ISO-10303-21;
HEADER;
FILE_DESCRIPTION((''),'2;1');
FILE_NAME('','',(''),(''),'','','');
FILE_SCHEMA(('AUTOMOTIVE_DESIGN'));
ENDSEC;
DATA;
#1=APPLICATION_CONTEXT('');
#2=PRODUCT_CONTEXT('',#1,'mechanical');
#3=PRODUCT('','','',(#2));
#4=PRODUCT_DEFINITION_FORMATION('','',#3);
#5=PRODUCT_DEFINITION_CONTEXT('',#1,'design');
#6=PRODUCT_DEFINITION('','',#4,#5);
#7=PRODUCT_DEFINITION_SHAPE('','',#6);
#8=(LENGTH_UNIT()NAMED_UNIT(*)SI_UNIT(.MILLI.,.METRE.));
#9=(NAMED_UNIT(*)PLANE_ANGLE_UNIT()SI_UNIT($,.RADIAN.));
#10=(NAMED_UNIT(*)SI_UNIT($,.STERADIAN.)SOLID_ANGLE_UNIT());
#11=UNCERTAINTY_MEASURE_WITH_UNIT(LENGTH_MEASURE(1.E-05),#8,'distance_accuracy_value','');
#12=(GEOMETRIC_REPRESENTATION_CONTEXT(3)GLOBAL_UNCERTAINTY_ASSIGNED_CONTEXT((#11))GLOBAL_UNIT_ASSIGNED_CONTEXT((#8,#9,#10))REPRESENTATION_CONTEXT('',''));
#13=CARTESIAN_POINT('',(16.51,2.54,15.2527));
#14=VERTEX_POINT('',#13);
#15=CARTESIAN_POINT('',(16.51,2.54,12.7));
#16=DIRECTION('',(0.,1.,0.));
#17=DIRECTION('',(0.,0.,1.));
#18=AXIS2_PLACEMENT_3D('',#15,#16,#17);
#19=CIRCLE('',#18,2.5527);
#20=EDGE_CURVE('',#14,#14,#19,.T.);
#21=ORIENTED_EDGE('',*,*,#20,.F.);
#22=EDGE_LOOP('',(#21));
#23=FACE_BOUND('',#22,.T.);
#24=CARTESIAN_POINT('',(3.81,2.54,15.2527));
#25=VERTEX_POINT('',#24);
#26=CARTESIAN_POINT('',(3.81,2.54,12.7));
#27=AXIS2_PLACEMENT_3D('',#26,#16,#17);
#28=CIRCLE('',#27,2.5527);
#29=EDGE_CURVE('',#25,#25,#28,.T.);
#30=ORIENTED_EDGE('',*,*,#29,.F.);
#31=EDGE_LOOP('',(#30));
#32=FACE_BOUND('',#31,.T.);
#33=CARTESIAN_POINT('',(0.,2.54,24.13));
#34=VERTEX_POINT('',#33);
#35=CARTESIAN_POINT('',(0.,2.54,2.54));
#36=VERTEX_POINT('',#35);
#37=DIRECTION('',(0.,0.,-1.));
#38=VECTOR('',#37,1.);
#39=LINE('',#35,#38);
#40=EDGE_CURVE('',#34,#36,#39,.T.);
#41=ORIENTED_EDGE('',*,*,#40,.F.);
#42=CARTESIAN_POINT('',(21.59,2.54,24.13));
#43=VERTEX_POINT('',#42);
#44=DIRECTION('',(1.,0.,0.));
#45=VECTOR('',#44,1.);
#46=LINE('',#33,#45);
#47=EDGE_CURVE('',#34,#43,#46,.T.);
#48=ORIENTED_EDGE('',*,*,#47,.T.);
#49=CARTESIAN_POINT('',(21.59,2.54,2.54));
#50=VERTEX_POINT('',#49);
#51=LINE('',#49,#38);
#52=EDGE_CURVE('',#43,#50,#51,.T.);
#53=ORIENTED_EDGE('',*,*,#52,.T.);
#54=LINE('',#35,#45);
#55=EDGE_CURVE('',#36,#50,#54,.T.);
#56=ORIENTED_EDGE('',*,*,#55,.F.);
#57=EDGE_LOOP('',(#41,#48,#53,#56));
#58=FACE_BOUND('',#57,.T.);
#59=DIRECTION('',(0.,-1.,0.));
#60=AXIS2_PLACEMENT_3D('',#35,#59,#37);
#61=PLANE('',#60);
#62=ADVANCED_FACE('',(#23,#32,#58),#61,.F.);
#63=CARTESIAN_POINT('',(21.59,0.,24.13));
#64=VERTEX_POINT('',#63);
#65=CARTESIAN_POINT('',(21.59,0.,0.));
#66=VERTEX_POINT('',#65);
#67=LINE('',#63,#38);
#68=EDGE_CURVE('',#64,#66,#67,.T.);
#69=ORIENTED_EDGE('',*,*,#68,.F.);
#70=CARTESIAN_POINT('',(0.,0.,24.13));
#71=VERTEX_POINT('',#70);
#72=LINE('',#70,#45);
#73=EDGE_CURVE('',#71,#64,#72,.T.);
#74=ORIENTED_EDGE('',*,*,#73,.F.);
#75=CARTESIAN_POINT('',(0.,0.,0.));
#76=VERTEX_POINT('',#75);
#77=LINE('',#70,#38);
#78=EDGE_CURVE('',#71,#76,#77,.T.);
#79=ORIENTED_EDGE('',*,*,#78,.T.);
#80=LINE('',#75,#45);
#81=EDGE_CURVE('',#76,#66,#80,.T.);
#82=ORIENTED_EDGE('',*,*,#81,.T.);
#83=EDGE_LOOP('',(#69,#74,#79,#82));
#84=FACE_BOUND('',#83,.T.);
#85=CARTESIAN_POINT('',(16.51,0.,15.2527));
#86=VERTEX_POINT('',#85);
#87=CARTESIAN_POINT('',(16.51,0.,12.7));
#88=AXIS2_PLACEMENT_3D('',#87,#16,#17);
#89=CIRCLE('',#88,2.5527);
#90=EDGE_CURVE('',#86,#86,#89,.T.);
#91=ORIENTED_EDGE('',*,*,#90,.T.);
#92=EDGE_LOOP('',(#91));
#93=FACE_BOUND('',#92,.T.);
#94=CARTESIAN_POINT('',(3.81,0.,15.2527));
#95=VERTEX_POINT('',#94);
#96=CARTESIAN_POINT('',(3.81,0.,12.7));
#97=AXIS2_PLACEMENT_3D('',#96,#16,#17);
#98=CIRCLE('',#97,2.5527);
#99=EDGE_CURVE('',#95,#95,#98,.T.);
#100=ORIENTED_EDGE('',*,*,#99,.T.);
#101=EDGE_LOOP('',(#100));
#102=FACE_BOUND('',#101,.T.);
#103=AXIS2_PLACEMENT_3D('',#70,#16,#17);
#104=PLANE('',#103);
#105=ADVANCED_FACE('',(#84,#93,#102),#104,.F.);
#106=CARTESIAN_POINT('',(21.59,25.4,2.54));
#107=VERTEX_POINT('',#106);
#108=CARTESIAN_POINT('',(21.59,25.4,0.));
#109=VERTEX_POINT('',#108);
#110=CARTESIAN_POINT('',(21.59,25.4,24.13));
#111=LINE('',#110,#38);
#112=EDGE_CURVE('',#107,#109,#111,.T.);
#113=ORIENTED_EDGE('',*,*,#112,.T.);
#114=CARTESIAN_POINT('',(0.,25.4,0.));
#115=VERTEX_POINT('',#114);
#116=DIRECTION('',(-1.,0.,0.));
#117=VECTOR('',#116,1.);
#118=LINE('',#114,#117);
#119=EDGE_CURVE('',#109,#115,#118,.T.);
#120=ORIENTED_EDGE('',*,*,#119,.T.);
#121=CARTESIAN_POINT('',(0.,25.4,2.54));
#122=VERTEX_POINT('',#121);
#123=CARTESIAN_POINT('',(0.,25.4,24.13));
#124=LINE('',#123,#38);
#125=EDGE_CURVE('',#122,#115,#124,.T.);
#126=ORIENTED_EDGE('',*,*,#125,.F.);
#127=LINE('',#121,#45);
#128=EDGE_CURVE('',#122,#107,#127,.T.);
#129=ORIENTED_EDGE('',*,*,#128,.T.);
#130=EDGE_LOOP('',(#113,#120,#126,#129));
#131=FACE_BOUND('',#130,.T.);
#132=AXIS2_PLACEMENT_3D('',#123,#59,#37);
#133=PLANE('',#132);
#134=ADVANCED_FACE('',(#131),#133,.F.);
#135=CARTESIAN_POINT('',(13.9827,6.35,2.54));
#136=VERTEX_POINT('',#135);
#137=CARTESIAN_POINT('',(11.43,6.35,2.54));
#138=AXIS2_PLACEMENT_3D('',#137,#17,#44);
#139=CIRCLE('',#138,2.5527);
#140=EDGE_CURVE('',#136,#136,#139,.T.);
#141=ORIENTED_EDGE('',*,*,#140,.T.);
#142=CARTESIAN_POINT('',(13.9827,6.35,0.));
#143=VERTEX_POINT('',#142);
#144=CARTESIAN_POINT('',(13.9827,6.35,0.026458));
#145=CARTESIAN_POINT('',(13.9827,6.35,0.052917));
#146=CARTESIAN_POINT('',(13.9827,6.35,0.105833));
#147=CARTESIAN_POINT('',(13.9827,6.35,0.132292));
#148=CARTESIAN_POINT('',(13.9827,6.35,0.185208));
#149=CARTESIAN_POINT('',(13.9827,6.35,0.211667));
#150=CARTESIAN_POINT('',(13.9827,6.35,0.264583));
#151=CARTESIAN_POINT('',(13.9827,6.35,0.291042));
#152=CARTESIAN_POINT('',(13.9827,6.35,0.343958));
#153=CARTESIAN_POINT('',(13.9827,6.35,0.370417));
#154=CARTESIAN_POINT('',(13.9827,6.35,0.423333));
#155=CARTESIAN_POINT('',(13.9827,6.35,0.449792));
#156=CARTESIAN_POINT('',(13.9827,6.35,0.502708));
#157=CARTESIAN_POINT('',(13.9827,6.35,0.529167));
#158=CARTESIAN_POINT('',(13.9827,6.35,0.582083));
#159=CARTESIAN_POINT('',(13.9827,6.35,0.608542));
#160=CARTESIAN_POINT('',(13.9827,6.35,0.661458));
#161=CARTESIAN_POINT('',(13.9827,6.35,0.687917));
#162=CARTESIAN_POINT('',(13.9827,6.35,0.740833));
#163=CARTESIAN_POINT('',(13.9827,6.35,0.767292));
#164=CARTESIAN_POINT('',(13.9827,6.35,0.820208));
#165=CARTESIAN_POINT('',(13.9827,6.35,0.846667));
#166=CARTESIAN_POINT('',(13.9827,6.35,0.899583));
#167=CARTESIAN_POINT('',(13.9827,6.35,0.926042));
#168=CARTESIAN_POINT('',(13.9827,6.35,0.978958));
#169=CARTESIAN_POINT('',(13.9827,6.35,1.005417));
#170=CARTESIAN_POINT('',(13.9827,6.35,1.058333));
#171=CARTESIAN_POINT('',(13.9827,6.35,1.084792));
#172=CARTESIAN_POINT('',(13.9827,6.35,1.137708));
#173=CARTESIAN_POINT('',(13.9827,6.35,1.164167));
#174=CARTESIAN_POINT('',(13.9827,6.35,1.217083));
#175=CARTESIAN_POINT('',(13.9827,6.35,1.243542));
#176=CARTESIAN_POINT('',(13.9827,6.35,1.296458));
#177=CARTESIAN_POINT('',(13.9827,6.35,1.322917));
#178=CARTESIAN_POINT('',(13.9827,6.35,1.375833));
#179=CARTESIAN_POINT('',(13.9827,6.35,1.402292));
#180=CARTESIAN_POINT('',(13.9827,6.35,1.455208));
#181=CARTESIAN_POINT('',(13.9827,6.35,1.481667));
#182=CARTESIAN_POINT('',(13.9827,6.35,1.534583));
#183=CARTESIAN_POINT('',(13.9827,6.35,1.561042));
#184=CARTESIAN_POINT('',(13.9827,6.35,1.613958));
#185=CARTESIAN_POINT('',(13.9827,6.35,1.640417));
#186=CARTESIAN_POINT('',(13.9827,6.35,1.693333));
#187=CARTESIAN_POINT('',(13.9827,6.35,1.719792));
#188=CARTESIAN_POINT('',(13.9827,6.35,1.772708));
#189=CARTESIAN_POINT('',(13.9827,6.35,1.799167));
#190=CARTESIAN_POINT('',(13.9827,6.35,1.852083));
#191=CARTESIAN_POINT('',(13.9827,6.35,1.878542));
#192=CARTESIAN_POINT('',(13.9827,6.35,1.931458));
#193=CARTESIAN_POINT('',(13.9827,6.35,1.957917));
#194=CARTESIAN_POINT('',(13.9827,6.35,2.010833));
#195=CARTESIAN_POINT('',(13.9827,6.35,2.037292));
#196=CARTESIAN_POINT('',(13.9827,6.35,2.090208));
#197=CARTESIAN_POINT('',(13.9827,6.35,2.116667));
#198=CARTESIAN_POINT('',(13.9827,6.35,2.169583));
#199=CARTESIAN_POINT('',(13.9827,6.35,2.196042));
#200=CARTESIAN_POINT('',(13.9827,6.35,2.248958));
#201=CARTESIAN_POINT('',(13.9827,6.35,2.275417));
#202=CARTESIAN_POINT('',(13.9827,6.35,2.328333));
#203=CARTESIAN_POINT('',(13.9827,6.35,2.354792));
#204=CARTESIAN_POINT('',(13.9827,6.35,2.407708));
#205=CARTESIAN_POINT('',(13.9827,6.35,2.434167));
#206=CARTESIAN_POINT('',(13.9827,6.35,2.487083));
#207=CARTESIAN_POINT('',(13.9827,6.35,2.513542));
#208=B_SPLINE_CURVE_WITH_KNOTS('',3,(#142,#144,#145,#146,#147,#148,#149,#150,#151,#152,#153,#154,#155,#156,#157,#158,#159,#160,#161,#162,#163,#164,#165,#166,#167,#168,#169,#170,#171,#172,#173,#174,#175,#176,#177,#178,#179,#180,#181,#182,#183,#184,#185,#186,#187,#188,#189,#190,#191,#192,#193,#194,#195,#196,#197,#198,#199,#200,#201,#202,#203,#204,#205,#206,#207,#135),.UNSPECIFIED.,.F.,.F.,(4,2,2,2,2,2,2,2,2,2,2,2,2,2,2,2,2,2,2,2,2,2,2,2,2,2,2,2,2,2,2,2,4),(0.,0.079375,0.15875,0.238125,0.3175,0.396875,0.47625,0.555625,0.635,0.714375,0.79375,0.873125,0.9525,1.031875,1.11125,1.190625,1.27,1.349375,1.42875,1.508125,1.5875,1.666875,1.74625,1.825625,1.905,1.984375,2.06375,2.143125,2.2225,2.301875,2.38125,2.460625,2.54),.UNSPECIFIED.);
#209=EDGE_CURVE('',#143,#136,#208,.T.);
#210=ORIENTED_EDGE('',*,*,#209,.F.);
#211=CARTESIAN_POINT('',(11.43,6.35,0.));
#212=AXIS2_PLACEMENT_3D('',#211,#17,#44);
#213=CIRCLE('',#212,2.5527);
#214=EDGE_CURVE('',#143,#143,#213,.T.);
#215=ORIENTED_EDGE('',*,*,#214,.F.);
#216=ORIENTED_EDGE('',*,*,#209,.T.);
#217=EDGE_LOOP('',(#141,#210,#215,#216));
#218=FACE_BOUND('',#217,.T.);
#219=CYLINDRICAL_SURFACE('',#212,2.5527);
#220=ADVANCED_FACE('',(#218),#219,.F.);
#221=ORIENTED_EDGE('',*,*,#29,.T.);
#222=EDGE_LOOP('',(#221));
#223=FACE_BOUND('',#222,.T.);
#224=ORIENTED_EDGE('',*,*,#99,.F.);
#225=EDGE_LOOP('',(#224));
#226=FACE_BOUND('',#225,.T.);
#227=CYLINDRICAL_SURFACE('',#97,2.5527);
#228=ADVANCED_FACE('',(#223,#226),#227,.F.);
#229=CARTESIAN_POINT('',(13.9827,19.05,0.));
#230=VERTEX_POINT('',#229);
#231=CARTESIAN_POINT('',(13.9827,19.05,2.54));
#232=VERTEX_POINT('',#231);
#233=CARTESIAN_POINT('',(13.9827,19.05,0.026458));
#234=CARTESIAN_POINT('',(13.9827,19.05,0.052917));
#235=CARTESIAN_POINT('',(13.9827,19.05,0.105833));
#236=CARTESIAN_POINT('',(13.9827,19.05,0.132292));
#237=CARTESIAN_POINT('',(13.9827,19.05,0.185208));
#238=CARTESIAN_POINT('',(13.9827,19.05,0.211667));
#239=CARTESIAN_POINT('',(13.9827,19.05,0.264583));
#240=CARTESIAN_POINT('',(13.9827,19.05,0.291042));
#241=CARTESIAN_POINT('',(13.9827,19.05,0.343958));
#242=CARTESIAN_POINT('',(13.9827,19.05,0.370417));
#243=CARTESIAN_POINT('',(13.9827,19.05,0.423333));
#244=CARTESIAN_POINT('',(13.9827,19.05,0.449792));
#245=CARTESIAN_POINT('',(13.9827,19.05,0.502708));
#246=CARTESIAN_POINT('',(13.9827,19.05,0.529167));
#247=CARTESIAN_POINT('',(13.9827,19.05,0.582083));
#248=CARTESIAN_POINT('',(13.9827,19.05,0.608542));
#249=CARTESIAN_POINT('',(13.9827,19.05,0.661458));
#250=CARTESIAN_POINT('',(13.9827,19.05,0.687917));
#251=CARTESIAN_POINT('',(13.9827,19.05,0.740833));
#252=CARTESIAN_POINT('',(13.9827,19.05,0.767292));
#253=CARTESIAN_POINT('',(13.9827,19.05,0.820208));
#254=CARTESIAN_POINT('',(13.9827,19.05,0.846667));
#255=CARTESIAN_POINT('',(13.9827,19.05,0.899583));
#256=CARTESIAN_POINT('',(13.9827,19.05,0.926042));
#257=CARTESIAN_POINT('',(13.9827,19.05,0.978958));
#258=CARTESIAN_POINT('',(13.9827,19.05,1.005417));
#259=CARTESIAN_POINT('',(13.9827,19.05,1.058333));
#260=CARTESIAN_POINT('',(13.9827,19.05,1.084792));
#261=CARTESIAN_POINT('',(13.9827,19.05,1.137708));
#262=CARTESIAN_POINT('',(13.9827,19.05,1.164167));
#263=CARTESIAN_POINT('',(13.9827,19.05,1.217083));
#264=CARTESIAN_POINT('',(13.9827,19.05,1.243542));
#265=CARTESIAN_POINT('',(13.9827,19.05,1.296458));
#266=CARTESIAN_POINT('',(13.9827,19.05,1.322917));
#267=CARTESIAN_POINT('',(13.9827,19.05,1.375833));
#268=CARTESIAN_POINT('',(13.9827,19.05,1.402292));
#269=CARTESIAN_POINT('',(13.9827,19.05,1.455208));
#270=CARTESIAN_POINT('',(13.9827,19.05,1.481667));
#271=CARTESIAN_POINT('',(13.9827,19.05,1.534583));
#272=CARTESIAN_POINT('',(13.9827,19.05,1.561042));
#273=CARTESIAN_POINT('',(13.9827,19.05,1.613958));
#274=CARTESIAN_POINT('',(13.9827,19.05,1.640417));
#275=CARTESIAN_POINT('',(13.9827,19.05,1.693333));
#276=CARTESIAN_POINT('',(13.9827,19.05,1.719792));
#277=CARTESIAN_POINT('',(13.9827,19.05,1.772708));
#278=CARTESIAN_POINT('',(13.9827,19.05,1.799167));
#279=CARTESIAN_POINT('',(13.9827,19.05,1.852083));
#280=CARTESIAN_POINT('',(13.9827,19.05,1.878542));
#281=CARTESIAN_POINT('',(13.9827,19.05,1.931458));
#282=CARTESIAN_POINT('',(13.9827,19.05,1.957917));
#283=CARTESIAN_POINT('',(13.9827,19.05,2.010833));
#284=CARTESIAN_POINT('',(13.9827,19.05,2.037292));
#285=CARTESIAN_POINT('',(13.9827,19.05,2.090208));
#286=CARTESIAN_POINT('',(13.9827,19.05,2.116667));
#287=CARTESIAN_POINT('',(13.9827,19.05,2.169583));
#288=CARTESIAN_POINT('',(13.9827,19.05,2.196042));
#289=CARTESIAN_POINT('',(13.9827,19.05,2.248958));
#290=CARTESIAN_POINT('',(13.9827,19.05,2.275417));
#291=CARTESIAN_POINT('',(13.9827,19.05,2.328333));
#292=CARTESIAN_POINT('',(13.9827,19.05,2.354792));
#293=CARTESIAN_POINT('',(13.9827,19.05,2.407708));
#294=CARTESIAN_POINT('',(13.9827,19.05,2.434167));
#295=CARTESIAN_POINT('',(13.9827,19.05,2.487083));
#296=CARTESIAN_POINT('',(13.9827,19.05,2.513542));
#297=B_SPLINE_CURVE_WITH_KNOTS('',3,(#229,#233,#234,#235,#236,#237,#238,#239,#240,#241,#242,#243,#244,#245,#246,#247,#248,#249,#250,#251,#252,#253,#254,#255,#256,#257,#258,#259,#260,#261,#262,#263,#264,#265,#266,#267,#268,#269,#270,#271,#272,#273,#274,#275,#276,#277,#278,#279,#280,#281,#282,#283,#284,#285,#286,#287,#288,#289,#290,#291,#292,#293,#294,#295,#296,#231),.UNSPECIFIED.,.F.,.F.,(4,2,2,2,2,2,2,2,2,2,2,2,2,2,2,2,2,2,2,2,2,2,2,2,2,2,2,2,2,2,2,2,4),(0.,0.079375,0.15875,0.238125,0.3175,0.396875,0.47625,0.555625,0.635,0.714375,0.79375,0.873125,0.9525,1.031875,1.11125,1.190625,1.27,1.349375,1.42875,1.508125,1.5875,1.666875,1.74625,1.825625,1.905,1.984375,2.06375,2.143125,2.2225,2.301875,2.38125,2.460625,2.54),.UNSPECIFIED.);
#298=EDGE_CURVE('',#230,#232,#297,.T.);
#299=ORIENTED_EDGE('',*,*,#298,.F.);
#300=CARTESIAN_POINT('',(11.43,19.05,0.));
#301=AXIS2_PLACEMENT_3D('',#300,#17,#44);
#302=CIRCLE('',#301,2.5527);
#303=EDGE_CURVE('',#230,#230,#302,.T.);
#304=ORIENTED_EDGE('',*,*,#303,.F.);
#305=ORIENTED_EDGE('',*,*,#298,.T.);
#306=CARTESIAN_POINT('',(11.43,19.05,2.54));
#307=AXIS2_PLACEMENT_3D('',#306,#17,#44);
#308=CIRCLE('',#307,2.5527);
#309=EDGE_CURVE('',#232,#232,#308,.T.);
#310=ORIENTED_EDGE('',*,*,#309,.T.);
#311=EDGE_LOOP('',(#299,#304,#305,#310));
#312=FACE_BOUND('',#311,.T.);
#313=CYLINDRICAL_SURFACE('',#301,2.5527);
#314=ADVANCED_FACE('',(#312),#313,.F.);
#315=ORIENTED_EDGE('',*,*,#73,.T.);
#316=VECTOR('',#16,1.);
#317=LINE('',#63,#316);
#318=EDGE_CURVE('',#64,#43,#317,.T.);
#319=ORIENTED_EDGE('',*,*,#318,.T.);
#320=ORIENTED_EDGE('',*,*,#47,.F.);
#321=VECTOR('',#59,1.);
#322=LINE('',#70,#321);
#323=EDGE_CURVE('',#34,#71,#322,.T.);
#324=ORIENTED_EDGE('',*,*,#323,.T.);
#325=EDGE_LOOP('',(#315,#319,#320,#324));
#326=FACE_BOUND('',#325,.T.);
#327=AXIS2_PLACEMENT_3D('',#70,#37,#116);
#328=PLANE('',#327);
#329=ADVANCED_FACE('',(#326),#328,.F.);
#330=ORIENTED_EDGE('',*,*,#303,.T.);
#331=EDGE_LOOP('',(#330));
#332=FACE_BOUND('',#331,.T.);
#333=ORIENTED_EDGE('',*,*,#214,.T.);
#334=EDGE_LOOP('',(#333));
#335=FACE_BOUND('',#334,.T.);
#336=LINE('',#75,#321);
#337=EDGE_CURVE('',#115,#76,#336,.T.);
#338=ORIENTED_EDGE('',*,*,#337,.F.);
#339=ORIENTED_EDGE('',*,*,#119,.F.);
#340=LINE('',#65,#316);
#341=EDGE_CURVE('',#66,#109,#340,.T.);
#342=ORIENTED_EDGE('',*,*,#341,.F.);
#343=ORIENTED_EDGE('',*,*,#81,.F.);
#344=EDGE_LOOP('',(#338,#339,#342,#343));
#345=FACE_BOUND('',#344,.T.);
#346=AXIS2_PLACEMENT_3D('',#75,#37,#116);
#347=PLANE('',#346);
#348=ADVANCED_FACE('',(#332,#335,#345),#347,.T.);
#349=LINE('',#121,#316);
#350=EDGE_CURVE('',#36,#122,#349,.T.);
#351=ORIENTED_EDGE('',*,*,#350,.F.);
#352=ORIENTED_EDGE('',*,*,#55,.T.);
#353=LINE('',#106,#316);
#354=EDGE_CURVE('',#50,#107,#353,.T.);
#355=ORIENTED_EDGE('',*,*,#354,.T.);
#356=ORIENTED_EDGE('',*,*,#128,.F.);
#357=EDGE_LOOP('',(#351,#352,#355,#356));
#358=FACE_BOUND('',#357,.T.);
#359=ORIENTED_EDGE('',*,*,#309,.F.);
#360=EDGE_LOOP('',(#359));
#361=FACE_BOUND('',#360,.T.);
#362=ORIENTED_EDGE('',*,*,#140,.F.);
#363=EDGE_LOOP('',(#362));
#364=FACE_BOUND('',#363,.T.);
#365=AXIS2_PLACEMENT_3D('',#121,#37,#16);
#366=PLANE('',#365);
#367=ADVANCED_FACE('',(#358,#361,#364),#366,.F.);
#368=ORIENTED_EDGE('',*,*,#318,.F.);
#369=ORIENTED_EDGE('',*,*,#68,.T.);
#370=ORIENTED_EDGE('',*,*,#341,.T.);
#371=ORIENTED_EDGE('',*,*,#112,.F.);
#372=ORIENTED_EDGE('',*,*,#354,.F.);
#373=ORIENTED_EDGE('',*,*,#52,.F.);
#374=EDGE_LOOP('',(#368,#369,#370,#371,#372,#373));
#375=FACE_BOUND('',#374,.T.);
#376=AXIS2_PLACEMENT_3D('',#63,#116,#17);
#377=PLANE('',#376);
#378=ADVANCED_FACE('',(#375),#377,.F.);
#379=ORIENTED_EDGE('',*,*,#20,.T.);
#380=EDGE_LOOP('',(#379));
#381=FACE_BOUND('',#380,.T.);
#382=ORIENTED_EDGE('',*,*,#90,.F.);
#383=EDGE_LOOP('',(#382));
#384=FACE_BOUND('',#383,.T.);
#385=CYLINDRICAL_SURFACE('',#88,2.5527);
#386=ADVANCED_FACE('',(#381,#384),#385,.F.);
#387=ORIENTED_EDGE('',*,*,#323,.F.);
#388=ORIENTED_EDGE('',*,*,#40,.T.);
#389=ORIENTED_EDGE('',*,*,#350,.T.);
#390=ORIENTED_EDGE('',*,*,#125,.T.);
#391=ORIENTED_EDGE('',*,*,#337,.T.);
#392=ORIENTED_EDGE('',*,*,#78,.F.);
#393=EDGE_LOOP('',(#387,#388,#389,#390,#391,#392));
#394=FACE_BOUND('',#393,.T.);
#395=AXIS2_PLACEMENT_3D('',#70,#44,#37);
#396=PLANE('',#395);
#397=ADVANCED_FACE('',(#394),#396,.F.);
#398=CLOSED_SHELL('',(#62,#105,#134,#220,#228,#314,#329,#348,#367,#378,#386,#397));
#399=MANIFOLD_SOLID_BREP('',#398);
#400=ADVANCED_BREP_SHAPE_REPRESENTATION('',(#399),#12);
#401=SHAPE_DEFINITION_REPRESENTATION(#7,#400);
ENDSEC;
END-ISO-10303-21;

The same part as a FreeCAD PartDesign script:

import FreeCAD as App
import Part
import Sketcher

V = App.Vector
Q = App.Units.Quantity


def add_polygon(sketch, points):
    """Adds a closed chain of lines whose ends are joined by coincident constraints."""
    first, n = sketch.GeometryCount, len(points)
    for a, b in zip(points, points[1:] + points[:1]):
        sketch.addGeometry(Part.LineSegment(App.Vector(*a, 0), App.Vector(*b, 0)), False)
    for i in range(n):
        sketch.addConstraint(Sketcher.Constraint("Coincident", first + i, 2, first + (i + 1) % n, 1))

doc = App.newDocument("Part")
body = doc.addObject("PartDesign::Body", "Body")

# Sketch on XY plane
sketch1 = body.newObject("Sketcher::SketchObject", "Sketch")
sketch1.AttachmentSupport = (doc.getObject("XY_Plane"), [""])
sketch1.MapMode = "FlatFace"
add_polygon(sketch1, [(0, 25), (0, 0), (22, 0), (22, 25)])  # lines 0-3
sketch1.addConstraint([
    Sketcher.Constraint("Vertical", 0),
    Sketcher.Constraint("Horizontal", 1),
    Sketcher.Constraint("Vertical", 2),
    Sketcher.Constraint("Horizontal", 3),
    Sketcher.Constraint("Coincident", 0, 2, -1, 1),
    Sketcher.Constraint("DistanceY", 0, 2, 0, 1, Q("1 in")),
    Sketcher.Constraint("DistanceX", 1, 1, 1, 2, Q("0.85 in")),
])
pad1 = body.newObject("PartDesign::Pad", "Pad")
pad1.Profile = sketch1
pad1.Length = Q("0.95 in")

# Sketch on YZ plane
sketch2 = body.newObject("Sketcher::SketchObject", "Sketch001")
sketch2.AttachmentSupport = (doc.getObject("YZ_Plane"), [""])
sketch2.MapMode = "FlatFace"
sketch2.AttachmentOffset = App.Placement(V(0, 0, 0.85 * 25.4), App.Rotation())
add_polygon(sketch2, [(25, 24), (3, 24), (3, 3), (25, 3)])  # lines 0-3
sketch2.addConstraint([
    Sketcher.Constraint("Horizontal", 0),
    Sketcher.Constraint("Vertical", 1),
    Sketcher.Constraint("Horizontal", 2),
    Sketcher.Constraint("Vertical", 3),
    Sketcher.Constraint("DistanceX", 0, 2, 0, 1, Q("0.9 in")),
    Sketcher.Constraint("DistanceX", -1, 1, 2, 2, Q("1 in")),
    Sketcher.Constraint("DistanceY", 1, 2, 1, 1, Q("0.85 in")),
    Sketcher.Constraint("DistanceY", -1, 1, 1, 2, Q("0.1 in")),
])
pocket1 = body.newObject("PartDesign::Pocket", "Pocket")
pocket1.Profile = sketch2
pocket1.Type = "ThroughAll"

# Sketch on XY plane
sketch3 = body.newObject("Sketcher::SketchObject", "Sketch002")
sketch3.AttachmentSupport = (doc.getObject("XY_Plane"), [""])
sketch3.MapMode = "FlatFace"
sketch3.AttachmentOffset = App.Placement(V(0, 0, 0.1 * 25.4), App.Rotation())
sketch3.addGeometry([
    Part.Circle(V(11.4, 19.1, 0), V(0, 0, 1), 2.6),
    Part.Circle(V(11.4, 6.3, 0), V(0, 0, 1), 2.6),
], False)
sketch3.addConstraint([
    Sketcher.Constraint("Equal", 0, 1),
    Sketcher.Constraint("Vertical", 0, 3, 1, 3),
    Sketcher.Constraint("Diameter", 0, Q("0.201 in")),
    Sketcher.Constraint("DistanceY", 1, 3, 0, 3, Q("0.5 in")),
    Sketcher.Constraint("DistanceX", -1, 1, 0, 3, Q("0.45 in")),
    Sketcher.Constraint("DistanceY", -1, 1, 0, 3, Q("0.75 in")),
])
pocket2 = body.newObject("PartDesign::Pocket", "Pocket001")
pocket2.Profile = sketch3
pocket2.Type = "ThroughAll"

# Sketch on XZ plane
sketch4 = body.newObject("Sketcher::SketchObject", "Sketch003")
sketch4.AttachmentSupport = (doc.getObject("XZ_Plane"), [""])
sketch4.MapMode = "FlatFace"
sketch4.AttachmentOffset = App.Placement(V(0, 0, -0.1 * 25.4), App.Rotation())
sketch4.addGeometry([
    Part.Circle(V(16.5, 12.7, 0), V(0, 0, 1), 2.6),
    Part.Circle(V(3.8, 12.7, 0), V(0, 0, 1), 2.6),
], False)
sketch4.addConstraint([
    Sketcher.Constraint("Equal", 0, 1),
    Sketcher.Constraint("Horizontal", 0, 3, 1, 3),
    Sketcher.Constraint("Diameter", 0, Q("0.201 in")),
    Sketcher.Constraint("DistanceY", -1, 1, 0, 3, Q("0.5 in")),
    Sketcher.Constraint("DistanceX", 1, 3, 0, 3, Q("0.5 in")),
    Sketcher.Constraint("DistanceX", -1, 1, 0, 3, Q("0.65 in")),
])
pocket3 = body.newObject("PartDesign::Pocket", "Pocket002")
pocket3.Profile = sketch4
pocket3.Type = "ThroughAll"
pocket3.Reversed = True

doc.recompute()
